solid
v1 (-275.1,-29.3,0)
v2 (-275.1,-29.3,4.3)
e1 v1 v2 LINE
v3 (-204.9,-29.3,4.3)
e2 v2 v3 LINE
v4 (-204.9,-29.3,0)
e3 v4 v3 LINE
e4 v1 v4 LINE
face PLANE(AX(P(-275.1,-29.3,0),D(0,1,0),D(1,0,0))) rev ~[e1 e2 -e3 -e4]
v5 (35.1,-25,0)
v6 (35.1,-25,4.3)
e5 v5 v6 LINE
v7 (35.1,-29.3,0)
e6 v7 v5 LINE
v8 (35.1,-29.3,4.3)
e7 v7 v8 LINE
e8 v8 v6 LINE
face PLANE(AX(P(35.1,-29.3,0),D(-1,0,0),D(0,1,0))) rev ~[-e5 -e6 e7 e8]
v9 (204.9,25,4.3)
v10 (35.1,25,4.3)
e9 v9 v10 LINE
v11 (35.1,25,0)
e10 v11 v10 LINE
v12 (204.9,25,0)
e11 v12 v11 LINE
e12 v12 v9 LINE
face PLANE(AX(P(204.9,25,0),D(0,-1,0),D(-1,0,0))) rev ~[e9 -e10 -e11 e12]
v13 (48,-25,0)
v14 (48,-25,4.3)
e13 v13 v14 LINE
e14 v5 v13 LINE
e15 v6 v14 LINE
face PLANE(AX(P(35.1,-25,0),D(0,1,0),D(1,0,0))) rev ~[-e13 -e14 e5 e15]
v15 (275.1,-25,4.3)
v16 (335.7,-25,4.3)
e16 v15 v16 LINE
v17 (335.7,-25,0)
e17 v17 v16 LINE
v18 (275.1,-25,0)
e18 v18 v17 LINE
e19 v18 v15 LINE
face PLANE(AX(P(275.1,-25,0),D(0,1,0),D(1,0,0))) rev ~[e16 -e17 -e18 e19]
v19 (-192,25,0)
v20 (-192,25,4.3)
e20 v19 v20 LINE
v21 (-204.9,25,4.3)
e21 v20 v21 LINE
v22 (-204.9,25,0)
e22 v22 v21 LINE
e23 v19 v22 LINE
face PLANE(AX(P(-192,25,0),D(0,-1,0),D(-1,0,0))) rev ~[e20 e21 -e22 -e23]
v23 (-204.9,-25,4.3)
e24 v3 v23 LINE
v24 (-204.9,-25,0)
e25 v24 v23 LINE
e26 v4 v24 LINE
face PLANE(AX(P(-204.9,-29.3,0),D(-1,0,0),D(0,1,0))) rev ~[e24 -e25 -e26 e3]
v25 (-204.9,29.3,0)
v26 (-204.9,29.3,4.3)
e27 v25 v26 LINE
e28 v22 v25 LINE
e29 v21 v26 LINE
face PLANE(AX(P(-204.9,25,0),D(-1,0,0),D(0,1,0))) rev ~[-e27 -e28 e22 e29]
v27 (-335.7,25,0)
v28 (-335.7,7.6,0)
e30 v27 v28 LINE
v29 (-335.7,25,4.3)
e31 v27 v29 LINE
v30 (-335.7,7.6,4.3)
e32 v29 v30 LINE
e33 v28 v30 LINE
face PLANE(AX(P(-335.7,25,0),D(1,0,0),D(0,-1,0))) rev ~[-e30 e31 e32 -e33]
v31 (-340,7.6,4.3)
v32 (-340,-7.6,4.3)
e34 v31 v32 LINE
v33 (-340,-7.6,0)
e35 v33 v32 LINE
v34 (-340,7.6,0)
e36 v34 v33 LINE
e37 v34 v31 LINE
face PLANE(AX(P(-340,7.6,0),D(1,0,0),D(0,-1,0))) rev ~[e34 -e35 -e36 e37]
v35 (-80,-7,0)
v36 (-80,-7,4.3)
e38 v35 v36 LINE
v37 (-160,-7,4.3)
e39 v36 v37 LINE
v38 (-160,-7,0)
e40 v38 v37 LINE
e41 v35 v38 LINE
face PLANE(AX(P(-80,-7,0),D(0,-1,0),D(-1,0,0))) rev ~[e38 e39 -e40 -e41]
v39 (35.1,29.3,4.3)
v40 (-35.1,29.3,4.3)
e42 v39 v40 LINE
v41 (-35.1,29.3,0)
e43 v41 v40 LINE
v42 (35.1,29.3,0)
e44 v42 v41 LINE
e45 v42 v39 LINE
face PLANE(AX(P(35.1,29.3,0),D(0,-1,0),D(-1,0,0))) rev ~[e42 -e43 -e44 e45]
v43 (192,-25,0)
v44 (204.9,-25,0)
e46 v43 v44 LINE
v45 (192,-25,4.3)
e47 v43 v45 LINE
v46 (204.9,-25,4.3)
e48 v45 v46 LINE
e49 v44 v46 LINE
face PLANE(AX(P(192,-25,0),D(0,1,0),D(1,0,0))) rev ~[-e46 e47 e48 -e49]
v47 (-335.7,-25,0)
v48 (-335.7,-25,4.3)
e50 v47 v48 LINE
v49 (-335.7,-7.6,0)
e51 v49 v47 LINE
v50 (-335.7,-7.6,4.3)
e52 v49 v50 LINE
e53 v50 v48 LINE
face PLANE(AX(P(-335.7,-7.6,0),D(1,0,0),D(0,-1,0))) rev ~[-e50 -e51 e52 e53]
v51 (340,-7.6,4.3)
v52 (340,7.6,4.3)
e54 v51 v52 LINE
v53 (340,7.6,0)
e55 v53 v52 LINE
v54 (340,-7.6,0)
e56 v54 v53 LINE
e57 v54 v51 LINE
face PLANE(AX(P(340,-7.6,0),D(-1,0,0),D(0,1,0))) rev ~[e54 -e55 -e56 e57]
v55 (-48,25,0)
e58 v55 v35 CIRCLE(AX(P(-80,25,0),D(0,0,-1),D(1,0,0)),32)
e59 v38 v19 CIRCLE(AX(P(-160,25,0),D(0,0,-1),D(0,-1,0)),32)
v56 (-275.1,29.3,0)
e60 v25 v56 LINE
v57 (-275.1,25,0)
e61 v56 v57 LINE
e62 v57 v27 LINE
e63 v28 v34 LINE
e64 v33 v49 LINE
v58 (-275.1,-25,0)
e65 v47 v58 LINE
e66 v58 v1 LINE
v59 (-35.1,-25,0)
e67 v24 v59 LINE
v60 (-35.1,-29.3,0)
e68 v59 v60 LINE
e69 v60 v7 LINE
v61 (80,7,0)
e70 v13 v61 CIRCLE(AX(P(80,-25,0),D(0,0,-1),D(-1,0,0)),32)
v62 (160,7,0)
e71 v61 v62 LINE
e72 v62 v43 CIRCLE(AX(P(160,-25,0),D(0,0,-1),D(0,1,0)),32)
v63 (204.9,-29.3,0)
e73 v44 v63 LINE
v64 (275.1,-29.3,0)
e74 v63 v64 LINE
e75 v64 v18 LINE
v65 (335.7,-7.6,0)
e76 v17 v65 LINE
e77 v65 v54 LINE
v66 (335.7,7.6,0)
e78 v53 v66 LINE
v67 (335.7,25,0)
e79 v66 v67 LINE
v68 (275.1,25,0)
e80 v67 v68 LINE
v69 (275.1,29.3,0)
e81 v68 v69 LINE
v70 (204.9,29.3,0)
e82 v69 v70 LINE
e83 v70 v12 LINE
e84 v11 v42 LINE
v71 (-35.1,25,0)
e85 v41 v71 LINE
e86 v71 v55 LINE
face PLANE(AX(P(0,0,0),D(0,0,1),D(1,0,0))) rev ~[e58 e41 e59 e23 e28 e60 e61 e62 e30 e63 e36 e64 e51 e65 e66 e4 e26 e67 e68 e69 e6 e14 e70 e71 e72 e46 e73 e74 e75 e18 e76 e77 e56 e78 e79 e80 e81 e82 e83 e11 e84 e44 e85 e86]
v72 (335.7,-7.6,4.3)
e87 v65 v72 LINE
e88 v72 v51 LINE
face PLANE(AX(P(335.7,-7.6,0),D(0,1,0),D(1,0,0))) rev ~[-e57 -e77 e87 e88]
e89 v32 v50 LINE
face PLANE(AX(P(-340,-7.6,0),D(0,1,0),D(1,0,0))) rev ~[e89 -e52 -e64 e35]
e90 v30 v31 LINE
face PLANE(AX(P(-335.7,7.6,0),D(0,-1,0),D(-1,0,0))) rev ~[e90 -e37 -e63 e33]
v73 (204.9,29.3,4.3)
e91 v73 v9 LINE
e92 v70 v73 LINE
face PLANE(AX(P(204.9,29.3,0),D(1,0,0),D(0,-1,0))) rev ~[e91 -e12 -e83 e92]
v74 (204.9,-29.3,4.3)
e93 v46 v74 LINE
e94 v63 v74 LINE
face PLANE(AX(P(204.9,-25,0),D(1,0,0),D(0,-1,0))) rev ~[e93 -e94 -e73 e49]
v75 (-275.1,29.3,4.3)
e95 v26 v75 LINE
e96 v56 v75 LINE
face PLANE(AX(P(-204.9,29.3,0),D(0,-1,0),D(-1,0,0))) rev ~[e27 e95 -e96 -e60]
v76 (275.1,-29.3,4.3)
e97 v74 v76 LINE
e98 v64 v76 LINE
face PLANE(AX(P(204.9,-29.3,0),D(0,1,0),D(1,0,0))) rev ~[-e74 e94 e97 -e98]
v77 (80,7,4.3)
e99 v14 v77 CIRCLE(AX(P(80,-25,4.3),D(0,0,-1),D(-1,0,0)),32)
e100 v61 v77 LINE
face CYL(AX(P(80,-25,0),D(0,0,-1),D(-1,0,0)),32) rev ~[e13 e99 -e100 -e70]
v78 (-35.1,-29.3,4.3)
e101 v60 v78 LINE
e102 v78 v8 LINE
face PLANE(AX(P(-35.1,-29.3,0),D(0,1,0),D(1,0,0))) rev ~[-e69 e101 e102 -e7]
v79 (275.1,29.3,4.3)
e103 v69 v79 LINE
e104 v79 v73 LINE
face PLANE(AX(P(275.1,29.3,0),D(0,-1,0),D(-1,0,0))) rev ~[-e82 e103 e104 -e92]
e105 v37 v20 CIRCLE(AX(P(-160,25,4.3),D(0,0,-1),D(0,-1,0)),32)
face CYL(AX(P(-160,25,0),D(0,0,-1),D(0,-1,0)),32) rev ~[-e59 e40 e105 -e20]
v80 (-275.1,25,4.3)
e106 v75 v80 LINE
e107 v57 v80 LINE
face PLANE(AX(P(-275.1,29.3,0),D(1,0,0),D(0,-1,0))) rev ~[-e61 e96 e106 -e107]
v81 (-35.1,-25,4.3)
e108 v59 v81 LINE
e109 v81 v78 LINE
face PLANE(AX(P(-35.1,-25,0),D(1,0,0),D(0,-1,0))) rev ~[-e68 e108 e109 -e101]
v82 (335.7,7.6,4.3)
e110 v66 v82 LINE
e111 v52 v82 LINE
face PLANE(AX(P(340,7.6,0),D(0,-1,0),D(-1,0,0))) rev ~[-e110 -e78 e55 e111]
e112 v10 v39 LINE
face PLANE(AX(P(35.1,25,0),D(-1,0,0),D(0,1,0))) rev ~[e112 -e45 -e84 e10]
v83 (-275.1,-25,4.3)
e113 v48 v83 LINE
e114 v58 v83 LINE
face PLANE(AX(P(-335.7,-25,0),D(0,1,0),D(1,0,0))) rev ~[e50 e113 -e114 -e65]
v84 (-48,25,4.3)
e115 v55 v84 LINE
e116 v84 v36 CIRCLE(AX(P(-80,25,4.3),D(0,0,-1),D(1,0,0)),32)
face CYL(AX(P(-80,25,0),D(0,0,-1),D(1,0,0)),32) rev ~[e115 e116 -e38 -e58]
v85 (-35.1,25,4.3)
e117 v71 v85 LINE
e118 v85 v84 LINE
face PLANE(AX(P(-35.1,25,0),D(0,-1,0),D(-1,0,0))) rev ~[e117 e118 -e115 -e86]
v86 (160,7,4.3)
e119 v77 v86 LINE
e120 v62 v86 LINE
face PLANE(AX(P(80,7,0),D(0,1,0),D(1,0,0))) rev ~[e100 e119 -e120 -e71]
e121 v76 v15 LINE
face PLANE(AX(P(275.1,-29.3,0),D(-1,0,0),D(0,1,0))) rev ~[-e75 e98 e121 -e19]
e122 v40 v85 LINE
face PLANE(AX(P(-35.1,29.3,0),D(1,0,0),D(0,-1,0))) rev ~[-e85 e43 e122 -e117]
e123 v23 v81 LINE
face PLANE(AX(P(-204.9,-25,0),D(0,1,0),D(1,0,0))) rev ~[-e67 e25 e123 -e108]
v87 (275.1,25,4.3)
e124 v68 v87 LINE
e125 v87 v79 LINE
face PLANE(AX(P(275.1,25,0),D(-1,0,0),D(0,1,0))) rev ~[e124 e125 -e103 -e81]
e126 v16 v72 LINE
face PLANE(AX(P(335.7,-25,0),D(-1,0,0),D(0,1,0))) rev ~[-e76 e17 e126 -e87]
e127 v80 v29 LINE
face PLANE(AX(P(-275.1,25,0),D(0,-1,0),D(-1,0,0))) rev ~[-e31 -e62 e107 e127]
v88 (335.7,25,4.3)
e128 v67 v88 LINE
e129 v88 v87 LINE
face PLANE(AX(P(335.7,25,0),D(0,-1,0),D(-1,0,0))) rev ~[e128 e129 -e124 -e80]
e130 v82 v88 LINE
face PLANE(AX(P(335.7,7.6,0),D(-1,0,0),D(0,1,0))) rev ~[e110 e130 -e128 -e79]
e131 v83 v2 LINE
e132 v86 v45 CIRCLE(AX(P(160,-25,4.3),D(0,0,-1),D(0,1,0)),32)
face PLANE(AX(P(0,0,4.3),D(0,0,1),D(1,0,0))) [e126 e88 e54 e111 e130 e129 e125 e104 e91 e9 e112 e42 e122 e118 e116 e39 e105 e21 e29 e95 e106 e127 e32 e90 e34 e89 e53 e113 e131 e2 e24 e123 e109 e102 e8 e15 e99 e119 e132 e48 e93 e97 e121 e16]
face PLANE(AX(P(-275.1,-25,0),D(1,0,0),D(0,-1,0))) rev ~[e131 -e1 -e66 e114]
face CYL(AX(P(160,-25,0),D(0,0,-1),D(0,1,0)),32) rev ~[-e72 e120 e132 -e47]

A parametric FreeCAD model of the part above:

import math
import FreeCAD as App
import Part
import Sketcher

doc = App.newDocument("Part")
params = doc.addObject("Spreadsheet::Sheet", "Params")
for row, (alias, value) in enumerate([
    ("sketch1_radius", "32 mm"),
    ("sketch1_width", "80 mm"),
    ("sketch1_width2", "60.6 mm"),
    ("sketch1_width3", "70.2 mm"),
    ("sketch1_width4", "169.8 mm"),
    ("pad1_length", "4.3 mm"),
], start=1):
    params.set(f"A{row}", alias)
    params.set(f"B{row}", "=" + value)
    params.setAlias(f"B{row}", alias)

body = doc.addObject("PartDesign::Body", "Body")

# Sketch on XY plane
sketch1 = doc.addObject("Sketcher::SketchObject", "Sketch")
body.addObject(sketch1)
sketch1.AttachmentSupport = (doc.XY_Plane, [""])
sketch1.MapMode = "FlatFace"
sketch1.addGeometry(Part.LineSegment(App.Vector(-335.7, -25, 0), App.Vector(-275.1, -25, 0)), False)
sketch1.addGeometry(Part.LineSegment(App.Vector(-275.1, -25, 0), App.Vector(-275.1, -29.3, 0)), False)
sketch1.addGeometry(Part.LineSegment(App.Vector(-275.1, -29.3, 0), App.Vector(-204.9, -29.3, 0)), False)
sketch1.addGeometry(Part.LineSegment(App.Vector(-204.9, -29.3, 0), App.Vector(-204.9, -25, 0)), False)
sketch1.addGeometry(Part.LineSegment(App.Vector(-204.9, -25, 0), App.Vector(-35.1, -25, 0)), False)
sketch1.addGeometry(Part.LineSegment(App.Vector(-35.1, -25, 0), App.Vector(-35.1, -29.3, 0)), False)
sketch1.addGeometry(Part.LineSegment(App.Vector(-35.1, -29.3, 0), App.Vector(35.1, -29.3, 0)), False)
sketch1.addGeometry(Part.LineSegment(App.Vector(35.1, -29.3, 0), App.Vector(35.1, -25, 0)), False)
sketch1.addGeometry(Part.LineSegment(App.Vector(35.1, -25, 0), App.Vector(48, -25, 0)), False)
sketch1.addGeometry(Part.ArcOfCircle(Part.Circle(App.Vector(80, -25, 0), App.Vector(0, 0, 1), 32), math.radians(90), math.radians(180)), False)
sketch1.addGeometry(Part.LineSegment(App.Vector(80, 7, 0), App.Vector(160, 7, 0)), False)
sketch1.addGeometry(Part.ArcOfCircle(Part.Circle(App.Vector(160, -25, 0), App.Vector(0, 0, 1), 32), math.radians(0), math.radians(90)), False)
sketch1.addGeometry(Part.LineSegment(App.Vector(192, -25, 0), App.Vector(204.9, -25, 0)), False)
sketch1.addGeometry(Part.LineSegment(App.Vector(204.9, -25, 0), App.Vector(204.9, -29.3, 0)), False)
sketch1.addGeometry(Part.LineSegment(App.Vector(204.9, -29.3, 0), App.Vector(275.1, -29.3, 0)), False)
sketch1.addGeometry(Part.LineSegment(App.Vector(275.1, -29.3, 0), App.Vector(275.1, -25, 0)), False)
sketch1.addGeometry(Part.LineSegment(App.Vector(275.1, -25, 0), App.Vector(335.7, -25, 0)), False)
sketch1.addGeometry(Part.LineSegment(App.Vector(335.7, -25, 0), App.Vector(335.7, -7.6, 0)), False)
sketch1.addGeometry(Part.LineSegment(App.Vector(335.7, -7.6, 0), App.Vector(340, -7.6, 0)), False)
sketch1.addGeometry(Part.LineSegment(App.Vector(340, -7.6, 0), App.Vector(340, 7.6, 0)), False)
sketch1.addGeometry(Part.LineSegment(App.Vector(340, 7.6, 0), App.Vector(335.7, 7.6, 0)), False)
sketch1.addGeometry(Part.LineSegment(App.Vector(335.7, 7.6, 0), App.Vector(335.7, 25, 0)), False)
sketch1.addGeometry(Part.LineSegment(App.Vector(335.7, 25, 0), App.Vector(275.1, 25, 0)), False)
sketch1.addGeometry(Part.LineSegment(App.Vector(275.1, 25, 0), App.Vector(275.1, 29.3, 0)), False)
sketch1.addGeometry(Part.LineSegment(App.Vector(275.1, 29.3, 0), App.Vector(204.9, 29.3, 0)), False)
sketch1.addGeometry(Part.LineSegment(App.Vector(204.9, 29.3, 0), App.Vector(204.9, 25, 0)), False)
sketch1.addGeometry(Part.LineSegment(App.Vector(204.9, 25, 0), App.Vector(35.1, 25, 0)), False)
sketch1.addGeometry(Part.LineSegment(App.Vector(35.1, 25, 0), App.Vector(35.1, 29.3, 0)), False)
sketch1.addGeometry(Part.LineSegment(App.Vector(35.1, 29.3, 0), App.Vector(-35.1, 29.3, 0)), False)
sketch1.addGeometry(Part.LineSegment(App.Vector(-35.1, 29.3, 0), App.Vector(-35.1, 25, 0)), False)
sketch1.addGeometry(Part.LineSegment(App.Vector(-35.1, 25, 0), App.Vector(-48, 25, 0)), False)
sketch1.addGeometry(Part.ArcOfCircle(Part.Circle(App.Vector(-80, 25, 0), App.Vector(0, 0, 1), 32), math.radians(-90), math.radians(0)), False)
sketch1.addGeometry(Part.LineSegment(App.Vector(-80, -7, 0), App.Vector(-160, -7, 0)), False)
sketch1.addGeometry(Part.ArcOfCircle(Part.Circle(App.Vector(-160, 25, 0), App.Vector(0, 0, 1), 32), math.radians(180), math.radians(270)), False)
sketch1.addGeometry(Part.LineSegment(App.Vector(-192, 25, 0), App.Vector(-204.9, 25, 0)), False)
sketch1.addGeometry(Part.LineSegment(App.Vector(-204.9, 25, 0), App.Vector(-204.9, 29.3, 0)), False)
sketch1.addGeometry(Part.LineSegment(App.Vector(-204.9, 29.3, 0), App.Vector(-275.1, 29.3, 0)), False)
sketch1.addGeometry(Part.LineSegment(App.Vector(-275.1, 29.3, 0), App.Vector(-275.1, 25, 0)), False)
sketch1.addGeometry(Part.LineSegment(App.Vector(-275.1, 25, 0), App.Vector(-335.7, 25, 0)), False)
sketch1.addGeometry(Part.LineSegment(App.Vector(-335.7, 25, 0), App.Vector(-335.7, 7.6, 0)), False)
sketch1.addGeometry(Part.LineSegment(App.Vector(-335.7, 7.6, 0), App.Vector(-340, 7.6, 0)), False)
sketch1.addGeometry(Part.LineSegment(App.Vector(-340, 7.6, 0), App.Vector(-340, -7.6, 0)), False)
sketch1.addGeometry(Part.LineSegment(App.Vector(-340, -7.6, 0), App.Vector(-335.7, -7.6, 0)), False)
sketch1.addGeometry(Part.LineSegment(App.Vector(-335.7, -7.6, 0), App.Vector(-335.7, -25, 0)), False)
sketch1.addConstraint(Sketcher.Constraint("Coincident", 0, 2, 1, 1))
sketch1.addConstraint(Sketcher.Constraint("Coincident", 1, 2, 2, 1))
sketch1.addConstraint(Sketcher.Constraint("Coincident", 2, 2, 3, 1))
sketch1.addConstraint(Sketcher.Constraint("Coincident", 3, 2, 4, 1))
sketch1.addConstraint(Sketcher.Constraint("Coincident", 4, 2, 5, 1))
sketch1.addConstraint(Sketcher.Constraint("Coincident", 5, 2, 6, 1))
sketch1.addConstraint(Sketcher.Constraint("Coincident", 6, 2, 7, 1))
sketch1.addConstraint(Sketcher.Constraint("Coincident", 7, 2, 8, 1))
sketch1.addConstraint(Sketcher.Constraint("Coincident", 8, 2, 9, 2))
sketch1.addConstraint(Sketcher.Constraint("Tangent", 9, 1, 10, 1))
sketch1.addConstraint(Sketcher.Constraint("Tangent", 10, 2, 11, 2))
sketch1.addConstraint(Sketcher.Constraint("Coincident", 11, 1, 12, 1))
sketch1.addConstraint(Sketcher.Constraint("Coincident", 12, 2, 13, 1))
sketch1.addConstraint(Sketcher.Constraint("Coincident", 13, 2, 14, 1))
sketch1.addConstraint(Sketcher.Constraint("Coincident", 14, 2, 15, 1))
sketch1.addConstraint(Sketcher.Constraint("Coincident", 15, 2, 16, 1))
sketch1.addConstraint(Sketcher.Constraint("Coincident", 16, 2, 17, 1))
sketch1.addConstraint(Sketcher.Constraint("Coincident", 17, 2, 18, 1))
sketch1.addConstraint(Sketcher.Constraint("Coincident", 18, 2, 19, 1))
sketch1.addConstraint(Sketcher.Constraint("Coincident", 19, 2, 20, 1))
sketch1.addConstraint(Sketcher.Constraint("Coincident", 20, 2, 21, 1))
sketch1.addConstraint(Sketcher.Constraint("Coincident", 21, 2, 22, 1))
sketch1.addConstraint(Sketcher.Constraint("Coincident", 22, 2, 23, 1))
sketch1.addConstraint(Sketcher.Constraint("Coincident", 23, 2, 24, 1))
sketch1.addConstraint(Sketcher.Constraint("Coincident", 24, 2, 25, 1))
sketch1.addConstraint(Sketcher.Constraint("Coincident", 25, 2, 26, 1))
sketch1.addConstraint(Sketcher.Constraint("Coincident", 26, 2, 27, 1))
sketch1.addConstraint(Sketcher.Constraint("Coincident", 27, 2, 28, 1))
sketch1.addConstraint(Sketcher.Constraint("Coincident", 28, 2, 29, 1))
sketch1.addConstraint(Sketcher.Constraint("Coincident", 29, 2, 30, 1))
sketch1.addConstraint(Sketcher.Constraint("Coincident", 30, 2, 31, 2))
sketch1.addConstraint(Sketcher.Constraint("Tangent", 31, 1, 32, 1))
sketch1.addConstraint(Sketcher.Constraint("Tangent", 32, 2, 33, 2))
sketch1.addConstraint(Sketcher.Constraint("Coincident", 33, 1, 34, 1))
sketch1.addConstraint(Sketcher.Constraint("Coincident", 34, 2, 35, 1))
sketch1.addConstraint(Sketcher.Constraint("Coincident", 35, 2, 36, 1))
sketch1.addConstraint(Sketcher.Constraint("Coincident", 36, 2, 37, 1))
sketch1.addConstraint(Sketcher.Constraint("Coincident", 37, 2, 38, 1))
sketch1.addConstraint(Sketcher.Constraint("Coincident", 38, 2, 39, 1))
sketch1.addConstraint(Sketcher.Constraint("Coincident", 39, 2, 40, 1))
sketch1.addConstraint(Sketcher.Constraint("Coincident", 40, 2, 41, 1))
sketch1.addConstraint(Sketcher.Constraint("Coincident", 41, 2, 42, 1))
sketch1.addConstraint(Sketcher.Constraint("Coincident", 42, 2, 43, 1))
sketch1.addConstraint(Sketcher.Constraint("Coincident", 43, 2, 0, 1))
sketch1.addConstraint(Sketcher.Constraint("Horizontal", 0))
sketch1.addConstraint(Sketcher.Constraint("Vertical", 1))
sketch1.addConstraint(Sketcher.Constraint("Horizontal", 2))
sketch1.addConstraint(Sketcher.Constraint("Vertical", 3))
sketch1.addConstraint(Sketcher.Constraint("Horizontal", 4))
sketch1.addConstraint(Sketcher.Constraint("Vertical", 5))
sketch1.addConstraint(Sketcher.Constraint("Horizontal", 6))
sketch1.addConstraint(Sketcher.Constraint("Vertical", 7))
sketch1.addConstraint(Sketcher.Constraint("Horizontal", 8))
sketch1.addConstraint(Sketcher.Constraint("Horizontal", 10))
sketch1.addConstraint(Sketcher.Constraint("Horizontal", 12))
sketch1.addConstraint(Sketcher.Constraint("Vertical", 13))
sketch1.addConstraint(Sketcher.Constraint("Horizontal", 14))
sketch1.addConstraint(Sketcher.Constraint("Vertical", 15))
sketch1.addConstraint(Sketcher.Constraint("Horizontal", 16))
sketch1.addConstraint(Sketcher.Constraint("Vertical", 17))
sketch1.addConstraint(Sketcher.Constraint("Horizontal", 18))
sketch1.addConstraint(Sketcher.Constraint("Vertical", 19))
sketch1.addConstraint(Sketcher.Constraint("Horizontal", 20))
sketch1.addConstraint(Sketcher.Constraint("Vertical", 21))
sketch1.addConstraint(Sketcher.Constraint("Horizontal", 22))
sketch1.addConstraint(Sketcher.Constraint("Vertical", 23))
sketch1.addConstraint(Sketcher.Constraint("Horizontal", 24))
sketch1.addConstraint(Sketcher.Constraint("Vertical", 25))
sketch1.addConstraint(Sketcher.Constraint("Horizontal", 26))
sketch1.addConstraint(Sketcher.Constraint("Vertical", 27))
sketch1.addConstraint(Sketcher.Constraint("Horizontal", 28))
sketch1.addConstraint(Sketcher.Constraint("Vertical", 29))
sketch1.addConstraint(Sketcher.Constraint("Horizontal", 30))
sketch1.addConstraint(Sketcher.Constraint("Horizontal", 32))
sketch1.addConstraint(Sketcher.Constraint("Horizontal", 34))
sketch1.addConstraint(Sketcher.Constraint("Vertical", 35))
sketch1.addConstraint(Sketcher.Constraint("Horizontal", 36))
sketch1.addConstraint(Sketcher.Constraint("Vertical", 37))
sketch1.addConstraint(Sketcher.Constraint("Horizontal", 38))
sketch1.addConstraint(Sketcher.Constraint("Vertical", 39))
sketch1.addConstraint(Sketcher.Constraint("Horizontal", 40))
sketch1.addConstraint(Sketcher.Constraint("Vertical", 41))
sketch1.addConstraint(Sketcher.Constraint("Horizontal", 42))
sketch1.addConstraint(Sketcher.Constraint("Vertical", 43))
sketch1.addConstraint(Sketcher.Constraint("Equal", 9, 11))
sketch1.addConstraint(Sketcher.Constraint("Equal", 11, 31))
sketch1.addConstraint(Sketcher.Constraint("Equal", 31, 33))
sketch1.addConstraint(Sketcher.Constraint("Symmetric", 9, 3, 31, 3, -1, 1))
sketch1.addConstraint(Sketcher.Constraint("Symmetric", 0, 2, 22, 2, -1, 1))
sketch1.addConstraint(Sketcher.Constraint("Symmetric", 2, 2, 24, 2, -1, 1))
sketch1.addConstraint(Sketcher.Constraint("Symmetric", 4, 2, 26, 2, -1, 1))
sketch1.addConstraint(Sketcher.Constraint("Symmetric", 6, 2, 28, 2, -1, 1))
sketch1.addConstraint(Sketcher.Constraint("Symmetric", 11, 1, 33, 1, -1, 1))
sketch1.addConstraint(Sketcher.Constraint("Symmetric", 13, 2, 35, 2, -1, 1))
sketch1.addConstraint(Sketcher.Constraint("Symmetric", 15, 2, 37, 2, -1, 1))
sketch1.addConstraint(Sketcher.Constraint("Symmetric", 17, 2, 39, 2, -1, 1))
sketch1.addConstraint(Sketcher.Constraint("Symmetric", 19, 2, 41, 2, -1, 1))
sketch1.addConstraint(Sketcher.Constraint("Symmetric", 4, 2, 7, 2, -2))
sketch1.addConstraint(Sketcher.Constraint("Symmetric", 3, 2, 12, 2, -2))
sketch1.addConstraint(Sketcher.Constraint("Symmetric", 1, 2, 14, 2, -2))
sketch1.addConstraint(Sketcher.Constraint("Symmetric", 21, 2, 38, 2, -2))
sketch1.addConstraint(Sketcher.Constraint("Symmetric", 17, 2, 42, 2, -2))
sketch1.addConstraint(Sketcher.Constraint("Horizontal", 11, 3, 0, 2))
sketch1.addConstraint(Sketcher.Constraint("Horizontal", 0, 2, 3, 2))
sketch1.addConstraint(Sketcher.Constraint("Horizontal", 2, 2, 5, 2))
sketch1.addConstraint(Sketcher.Constraint("Horizontal", 26, 2, 29, 2))
sketch1.addConstraint(Sketcher.Constraint("Equal", 2, 6))
sketch1.addConstraint(Sketcher.Constraint("Equal", 8, 12))
sketch1.addConstraint(Sketcher.Constraint("Equal", 42, 1))
sketch1.addConstraint(Sketcher.Constraint("Radius", 9, 32.0))
sketch1.addConstraint(Sketcher.Constraint("DistanceX", 10, 1, 10, 2, 80.0))
sketch1.addConstraint(Sketcher.Constraint("DistanceX", 0, 1, 0, 2, 60.6))
sketch1.addConstraint(Sketcher.Constraint("DistanceX", 2, 1, 2, 2, 70.2))
sketch1.addConstraint(Sketcher.Constraint("DistanceX", 4, 1, 4, 2, 169.8))
sketch1.addConstraint(Sketcher.Constraint("DistanceX", 18, 1, 18, 2, 4.3))
sketch1.addConstraint(Sketcher.Constraint("DistanceY", 17, 1, 17, 2, 17.4))
sketch1.addConstraint(Sketcher.Constraint("DistanceY", 19, 1, 19, 2, 15.2))
sketch1.setExpression("Constraints[109]", "Params.sketch1_radius")
sketch1.setExpression("Constraints[110]", "Params.sketch1_width")
sketch1.setExpression("Constraints[111]", "Params.sketch1_width2")
sketch1.setExpression("Constraints[112]", "Params.sketch1_width3")
sketch1.setExpression("Constraints[113]", "Params.sketch1_width4")
pad1 = doc.addObject("PartDesign::Pad", "Pad")
body.addObject(pad1)
pad1.Profile = sketch1
pad1.setExpression("Length", "Params.pad1_length")

doc.recompute()
